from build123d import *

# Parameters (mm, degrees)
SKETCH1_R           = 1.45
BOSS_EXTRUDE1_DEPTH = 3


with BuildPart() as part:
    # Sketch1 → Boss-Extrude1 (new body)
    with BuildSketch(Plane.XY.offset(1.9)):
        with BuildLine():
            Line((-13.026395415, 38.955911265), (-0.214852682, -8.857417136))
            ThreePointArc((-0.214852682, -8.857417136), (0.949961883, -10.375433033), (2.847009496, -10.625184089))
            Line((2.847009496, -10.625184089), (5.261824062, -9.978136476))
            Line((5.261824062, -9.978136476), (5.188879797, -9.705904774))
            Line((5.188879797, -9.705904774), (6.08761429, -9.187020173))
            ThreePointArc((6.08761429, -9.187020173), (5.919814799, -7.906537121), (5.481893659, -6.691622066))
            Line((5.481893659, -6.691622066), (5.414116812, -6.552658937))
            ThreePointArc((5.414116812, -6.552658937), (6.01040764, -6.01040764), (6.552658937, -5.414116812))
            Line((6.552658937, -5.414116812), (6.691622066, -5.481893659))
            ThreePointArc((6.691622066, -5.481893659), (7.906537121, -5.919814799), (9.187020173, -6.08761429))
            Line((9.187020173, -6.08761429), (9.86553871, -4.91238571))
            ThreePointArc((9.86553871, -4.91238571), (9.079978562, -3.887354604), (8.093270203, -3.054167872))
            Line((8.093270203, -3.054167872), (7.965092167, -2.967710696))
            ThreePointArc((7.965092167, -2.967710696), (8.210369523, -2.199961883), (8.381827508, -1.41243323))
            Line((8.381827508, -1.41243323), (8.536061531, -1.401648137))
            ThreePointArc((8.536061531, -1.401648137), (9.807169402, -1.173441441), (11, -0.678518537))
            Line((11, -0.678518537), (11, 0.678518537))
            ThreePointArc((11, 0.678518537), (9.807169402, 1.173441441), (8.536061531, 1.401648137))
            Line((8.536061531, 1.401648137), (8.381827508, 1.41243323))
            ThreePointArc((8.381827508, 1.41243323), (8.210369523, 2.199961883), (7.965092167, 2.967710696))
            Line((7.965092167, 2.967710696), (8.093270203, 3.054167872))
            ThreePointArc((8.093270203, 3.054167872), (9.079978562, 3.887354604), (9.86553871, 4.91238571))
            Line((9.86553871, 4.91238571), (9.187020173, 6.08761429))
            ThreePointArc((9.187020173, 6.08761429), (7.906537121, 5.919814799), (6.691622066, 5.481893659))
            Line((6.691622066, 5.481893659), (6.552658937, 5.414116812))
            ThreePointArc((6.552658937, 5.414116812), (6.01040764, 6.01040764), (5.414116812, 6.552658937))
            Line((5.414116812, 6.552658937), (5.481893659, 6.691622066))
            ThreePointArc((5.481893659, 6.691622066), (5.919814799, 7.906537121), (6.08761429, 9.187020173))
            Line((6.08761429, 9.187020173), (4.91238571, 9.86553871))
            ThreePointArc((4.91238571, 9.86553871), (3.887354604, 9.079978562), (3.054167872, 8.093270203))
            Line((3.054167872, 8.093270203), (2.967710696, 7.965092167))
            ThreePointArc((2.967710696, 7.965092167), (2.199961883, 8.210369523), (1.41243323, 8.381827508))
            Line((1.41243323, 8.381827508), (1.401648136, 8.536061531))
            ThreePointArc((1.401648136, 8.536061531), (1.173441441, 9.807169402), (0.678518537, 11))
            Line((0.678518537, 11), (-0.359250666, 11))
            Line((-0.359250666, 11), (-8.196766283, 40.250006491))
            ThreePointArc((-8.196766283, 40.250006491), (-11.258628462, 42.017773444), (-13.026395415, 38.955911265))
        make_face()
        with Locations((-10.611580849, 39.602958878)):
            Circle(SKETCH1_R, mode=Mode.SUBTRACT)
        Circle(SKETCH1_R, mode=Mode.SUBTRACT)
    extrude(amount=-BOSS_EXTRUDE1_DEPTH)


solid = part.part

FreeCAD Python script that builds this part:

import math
import FreeCAD as App
import Part
import Sketcher

V = App.Vector
Q = App.Units.Quantity

doc = App.newDocument("Part")
params = doc.addObject("Spreadsheet::Sheet", "Params")
for row, (alias, value) in enumerate([
    ("sketch1_radius", "6 mm"),
    ("sketch1_diameter", "2.9 mm"),
    ("sketch1_radius2", "2.5 mm"),
    ("sketch1_radius3", "8.5 mm"),
    ("sketch1_length", "49.5 mm"),
    ("pad1_length", "3 mm"),
], start=1):
    params.set(f"A{row}", alias)
    params.set(f"B{row}", "=" + value)
    params.setAlias(f"B{row}", alias)

body = doc.addObject("PartDesign::Body", "Body")

sketch1 = doc.addObject("Sketcher::SketchObject", "Sketch")
body.addObject(sketch1)
sketch1.AttachmentSupport = (doc.XY_Plane, [""])
sketch1.MapMode = "FlatFace"
sketch1.AttachmentOffset = App.Placement(V(0, 0, 1.9), App.Rotation())
sketch1.addGeometry([
    Part.LineSegment(V(-13.03, 38.96, 0), V(-0.21, -8.86, 0)),
    Part.ArcOfCircle(Part.Circle(V(2.2, -8.21, 0), V(0, 0, 1), 2.5), math.radians(-165), math.radians(-75)),
    Part.LineSegment(V(2.85, -10.63, 0), V(5.26, -9.98, 0)),
    Part.LineSegment(V(5.26, -9.98, 0), V(5.19, -9.71, 0)),
    Part.LineSegment(V(5.19, -9.71, 0), V(6.09, -9.19, 0)),
    Part.ArcOfCircle(Part.Circle(V(0.09, -9.32, 0), V(0, 0, 1), 6), math.radians(1), math.radians(26)),
    Part.LineSegment(V(5.48, -6.69, 0), V(5.41, -6.55, 0)),
    Part.ArcOfCircle(Part.Circle(V(0, 0, 0), V(0, 0, 1), 8.5), math.radians(-50.43), math.radians(-39.57)),
    Part.LineSegment(V(6.55, -5.41, 0), V(6.69, -5.48, 0)),
    Part.ArcOfCircle(Part.Circle(V(9.32, -0.09, 0), V(0, 0, 1), 6), math.radians(-116), math.radians(-91)),
    Part.LineSegment(V(9.19, -6.09, 0), V(9.87, -4.91, 0)),
    Part.ArcOfCircle(Part.Circle(V(4.74, -8.03, 0), V(0, 0, 1), 6), math.radians(31), math.radians(56)),
    Part.LineSegment(V(8.09, -3.05, 0), V(7.97, -2.97, 0)),
    Part.ArcOfCircle(Part.Circle(V(0, 0, 0), V(0, 0, 1), 8.5), math.radians(-20.43), math.radians(-9.57)),
    Part.LineSegment(V(8.38, -1.41, 0), V(8.54, -1.4, 0)),
    Part.ArcOfCircle(Part.Circle(V(8.12, 4.58, 0), V(0, 0, 1), 6), math.radians(-86), math.radians(-61)),
    Part.LineSegment(V(11, -0.68, 0), V(11, 0.68, 0)),
    Part.ArcOfCircle(Part.Circle(V(8.12, -4.58, 0), V(0, 0, 1), 6), math.radians(61), math.radians(86)),
    Part.LineSegment(V(8.54, 1.4, 0), V(8.38, 1.41, 0)),
    Part.ArcOfCircle(Part.Circle(V(0, 0, 0), V(0, 0, 1), 8.5), math.radians(9.57), math.radians(20.43)),
    Part.LineSegment(V(7.97, 2.97, 0), V(8.09, 3.05, 0)),
    Part.ArcOfCircle(Part.Circle(V(4.74, 8.03, 0), V(0, 0, 1), 6), math.radians(-56), math.radians(-31)),
    Part.LineSegment(V(9.87, 4.91, 0), V(9.19, 6.09, 0)),
    Part.ArcOfCircle(Part.Circle(V(9.32, 0.09, 0), V(0, 0, 1), 6), math.radians(91), math.radians(116)),
    Part.LineSegment(V(6.69, 5.48, 0), V(6.55, 5.41, 0)),
    Part.ArcOfCircle(Part.Circle(V(0, 0, 0), V(0, 0, 1), 8.5), math.radians(39.57), math.radians(50.43)),
    Part.LineSegment(V(5.41, 6.55, 0), V(5.48, 6.69, 0)),
    Part.ArcOfCircle(Part.Circle(V(0.09, 9.32, 0), V(0, 0, 1), 6), math.radians(-26), math.radians(-1)),
    Part.LineSegment(V(6.09, 9.19, 0), V(4.91, 9.87, 0)),
    Part.ArcOfCircle(Part.Circle(V(8.03, 4.74, 0), V(0, 0, 1), 6), math.radians(121), math.radians(146)),
    Part.LineSegment(V(3.05, 8.09, 0), V(2.97, 7.97, 0)),
    Part.ArcOfCircle(Part.Circle(V(0, 0, 0), V(0, 0, 1), 8.5), math.radians(69.57), math.radians(80.43)),
    Part.LineSegment(V(1.41, 8.38, 0), V(1.4, 8.54, 0)),
    Part.ArcOfCircle(Part.Circle(V(-4.58, 8.12, 0), V(0, 0, 1), 6), math.radians(4), math.radians(29)),
    Part.LineSegment(V(0.68, 11, 0), V(-0.36, 11, 0)),
    Part.LineSegment(V(-0.36, 11, 0), V(-8.2, 40.25, 0)),
    Part.ArcOfCircle(Part.Circle(V(-10.61, 39.6, 0), V(0, 0, 1), 2.5), math.radians(15), math.radians(195)),
    Part.Circle(V(0, 0, 0), V(0, 0, 1), 1.45),
    Part.Circle(V(-10.61, 39.6, 0), V(0, 0, 1), 1.45),
], False)
sketch1.addConstraint([
    Sketcher.Constraint("Tangent", 0, 2, 1, 1),
    Sketcher.Constraint("Tangent", 1, 2, 2, 1),
    Sketcher.Constraint("Coincident", 2, 2, 3, 1),
    Sketcher.Constraint("Coincident", 3, 2, 4, 1),
    Sketcher.Constraint("Coincident", 4, 2, 5, 1),
    Sketcher.Constraint("Tangent", 5, 2, 6, 1),
    Sketcher.Constraint("Coincident", 6, 2, 7, 1),
    Sketcher.Constraint("Coincident", 7, 2, 8, 1),
    Sketcher.Constraint("Tangent", 8, 2, 9, 1),
    Sketcher.Constraint("Coincident", 9, 2, 10, 1),
    Sketcher.Constraint("Coincident", 10, 2, 11, 1),
    Sketcher.Constraint("Tangent", 11, 2, 12, 1),
    Sketcher.Constraint("Coincident", 12, 2, 13, 1),
    Sketcher.Constraint("Coincident", 13, 2, 14, 1),
    Sketcher.Constraint("Tangent", 14, 2, 15, 1),
    Sketcher.Constraint("Coincident", 15, 2, 16, 1),
    Sketcher.Constraint("Coincident", 16, 2, 17, 1),
    Sketcher.Constraint("Tangent", 17, 2, 18, 1),
    Sketcher.Constraint("Coincident", 18, 2, 19, 1),
    Sketcher.Constraint("Coincident", 19, 2, 20, 1),
    Sketcher.Constraint("Tangent", 20, 2, 21, 1),
    Sketcher.Constraint("Coincident", 21, 2, 22, 1),
    Sketcher.Constraint("Coincident", 22, 2, 23, 1),
    Sketcher.Constraint("Tangent", 23, 2, 24, 1),
    Sketcher.Constraint("Coincident", 24, 2, 25, 1),
    Sketcher.Constraint("Coincident", 25, 2, 26, 1),
    Sketcher.Constraint("Tangent", 26, 2, 27, 1),
    Sketcher.Constraint("Coincident", 27, 2, 28, 1),
    Sketcher.Constraint("Coincident", 28, 2, 29, 1),
    Sketcher.Constraint("Tangent", 29, 2, 30, 1),
    Sketcher.Constraint("Coincident", 30, 2, 31, 1),
    Sketcher.Constraint("Coincident", 31, 2, 32, 1),
    Sketcher.Constraint("Tangent", 32, 2, 33, 1),
    Sketcher.Constraint("Coincident", 33, 2, 34, 1),
    Sketcher.Constraint("Coincident", 34, 2, 35, 1),
    Sketcher.Constraint("Tangent", 35, 2, 36, 1),
    Sketcher.Constraint("Tangent", 36, 2, 0, 1),
    Sketcher.Constraint("Vertical", 16),
    Sketcher.Constraint("Horizontal", 34),
    Sketcher.Constraint("Coincident", 7, 3, -1, 1),
    Sketcher.Constraint("Coincident", 13, 3, -1, 1),
    Sketcher.Constraint("Coincident", 19, 3, -1, 1),
    Sketcher.Constraint("Coincident", 25, 3, -1, 1),
    Sketcher.Constraint("Coincident", 31, 3, -1, 1),
    Sketcher.Constraint("Coincident", 37, 3, -1, 1),
    Sketcher.Constraint("Coincident", 38, 3, 36, 3),
    Sketcher.Constraint("Equal", 5, 9),
    Sketcher.Constraint("Equal", 9, 11),
    Sketcher.Constraint("Equal", 7, 13),
    Sketcher.Constraint("Equal", 11, 15),
    Sketcher.Constraint("Equal", 15, 17),
    Sketcher.Constraint("Equal", 13, 19),
    Sketcher.Constraint("Equal", 17, 21),
    Sketcher.Constraint("Equal", 21, 23),
    Sketcher.Constraint("Equal", 19, 25),
    Sketcher.Constraint("Equal", 23, 27),
    Sketcher.Constraint("Equal", 27, 29),
    Sketcher.Constraint("Equal", 25, 31),
    Sketcher.Constraint("Equal", 29, 33),
    Sketcher.Constraint("Equal", 1, 36),
    Sketcher.Constraint("Equal", 37, 38),
    Sketcher.Constraint("Symmetric", 15, 3, 17, 3, -1),
    Sketcher.Constraint("Symmetric", 11, 3, 21, 3, -1),
    Sketcher.Constraint("Symmetric", 9, 3, 23, 3, -1),
    Sketcher.Constraint("Symmetric", 5, 3, 27, 3, -1),
    Sketcher.Constraint("Perpendicular", 0, 2),
    Sketcher.Constraint("Perpendicular", 2, 3),
    Sketcher.Constraint("Perpendicular", 4, 22),
    Sketcher.Constraint("Perpendicular", 6, 24),
    Sketcher.Constraint("Perpendicular", 8, 26),
    Sketcher.Constraint("Perpendicular", 10, 28),
    Sketcher.Constraint("Perpendicular", 12, 30),
    Sketcher.Constraint("Perpendicular", 14, 32),
    Sketcher.Constraint("Parallel", 3, 35),
    Sketcher.Constraint("Vertical", 14, 2, 17, 2),
    Sketcher.Constraint("Vertical", 12, 2, 19, 2),
    Sketcher.Constraint("Vertical", 10, 2, 21, 2),
    Sketcher.Constraint("Vertical", 9, 2, 22, 2),
    Sketcher.Constraint("Vertical", 8, 2, 23, 2),
    Sketcher.Constraint("Vertical", 4, 2, 27, 2),
    Sketcher.Constraint("Equal", 6, 8),
    Sketcher.Constraint("Equal", 8, 12),
    Sketcher.Constraint("Equal", 12, 14),
    Sketcher.Constraint("Equal", 22, 28),
    Sketcher.Constraint("Equal", 26, 30),
    Sketcher.Constraint("Equal", 30, 32),
    Sketcher.Constraint("Radius", 5, Q("6 mm")),
    Sketcher.Constraint("Diameter", 37, Q("2.9 mm")),
    Sketcher.Constraint("Radius", 1, Q("2.5 mm")),
    Sketcher.Constraint("Radius", 7, Q("8.5 mm")),
    Sketcher.Constraint("Angle", 0, Q("-75 deg")),
    Sketcher.Constraint("Angle", 4, Q("30 deg")),
    Sketcher.Constraint("Angle", 6, Q("116 deg")),
    Sketcher.Constraint("Angle", 12, Q("146 deg")),
    Sketcher.Constraint("Angle", 14, Q("4 deg")),
    Sketcher.Constraint("DistanceX", -1, 1, 15, 2, Q("11 mm")),
    Sketcher.Constraint("DistanceY", -1, 1, 33, 2, Q("11 mm")),
    Sketcher.Constraint("Distance", 0, Q("49.5 mm")),
    Sketcher.Constraint("Distance", 2, Q("2.5 mm")),
    Sketcher.Constraint("DistanceX", 34, 2, 34, 1, Q("1.037769 mm")),
    Sketcher.Constraint("DistanceX", 11, 3, 4, 2, Q("1.349502 mm")),
    Sketcher.Constraint("DistanceY", 4, 2, 5, 2, Q("2.495398 mm")),
    Sketcher.Constraint("DistanceX", 8, 2, 17, 3, Q("1.425901 mm")),
    Sketcher.Constraint("DistanceY", 11, 3, 8, 2, Q("2.5465 mm")),
    Sketcher.Constraint("DistanceX", 8, 2, 9, 2, Q("2.495398 mm")),
    Sketcher.Constraint("DistanceX", 19, 2, 29, 3, Q("0.063301 mm")),
    Sketcher.Constraint("DistanceY", 29, 3, 22, 2, Q("1.349502 mm")),
    Sketcher.Constraint("DistanceX", 34, 2, 32, 2, Q("1.760899 mm")),
    Sketcher.Constraint("DistanceX", -1, 1, 1, 3, Q("2.199962 mm")),
])
sketch1.setExpression("Constraints[86]", "Params.sketch1_radius")
sketch1.setExpression("Constraints[87]", "Params.sketch1_diameter")
sketch1.setExpression("Constraints[88]", "Params.sketch1_radius2")
sketch1.setExpression("Constraints[89]", "Params.sketch1_radius3")
sketch1.setExpression("Constraints[97]", "Params.sketch1_length")
pad1 = doc.addObject("PartDesign::Pad", "Pad")
body.addObject(pad1)
pad1.Profile = sketch1
pad1.setExpression("Length", "Params.pad1_length")
pad1.Reversed = True

doc.recompute()
